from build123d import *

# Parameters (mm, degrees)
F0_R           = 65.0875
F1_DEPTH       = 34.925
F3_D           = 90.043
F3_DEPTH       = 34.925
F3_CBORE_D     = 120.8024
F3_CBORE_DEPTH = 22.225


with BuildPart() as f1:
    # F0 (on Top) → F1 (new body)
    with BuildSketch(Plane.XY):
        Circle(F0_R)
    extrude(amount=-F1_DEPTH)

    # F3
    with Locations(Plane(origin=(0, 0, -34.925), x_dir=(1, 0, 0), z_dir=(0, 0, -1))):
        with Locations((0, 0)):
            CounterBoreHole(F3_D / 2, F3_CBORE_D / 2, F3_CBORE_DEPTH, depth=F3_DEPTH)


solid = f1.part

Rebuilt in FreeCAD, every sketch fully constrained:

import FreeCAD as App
import Part
import Sketcher
from FreeCAD import Vector
Q = App.Units.Quantity

doc = App.newDocument("Part")
body = doc.addObject("PartDesign::Body", "Body")

sketch1 = body.newObject("Sketcher::SketchObject", "Sketch")
sketch1.AttachmentSupport = (doc.getObject("XY_Plane"), [""])
sketch1.MapMode = "FlatFace"
sketch1.addGeometry(Part.Circle(Vector(0, 0, 0), Vector(0, 0, 1), 65), False)
sketch1.addConstraint([
    Sketcher.Constraint("Coincident", 0, 3, -1, 1),
    Sketcher.Constraint("Diameter", 0, Q("5.125 in")),
])
pad1 = body.newObject("PartDesign::Pad", "Pad")
pad1.Profile = sketch1
pad1.Length = Q("1.375 in")
pad1.Reversed = True

sketch2 = body.newObject("Sketcher::SketchObject", "Sketch001")
sketch2.AttachmentSupport = (doc.getObject("XY_Plane"), [""])
sketch2.MapMode = "FlatFace"
sketch2.AttachmentOffset = App.Placement(Vector(0, 0, -1.375 * 25.4), App.Rotation())
sketch2.addGeometry(Part.Circle(Vector(0, 0, 0), Vector(0, 0, 1), 45), False)
sketch2.addConstraint([
    Sketcher.Constraint("Coincident", 0, 3, -1, 1),
    Sketcher.Constraint("Diameter", 0, Q("3.545 in")),
])
doc.recompute()
hole = body.newObject("PartDesign::Hole", "Hole")
hole.Profile = sketch2
hole.ThreadType = "None"
hole.Diameter = Q("3.545 in")
hole.DepthType = "Dimension"
hole.Depth = Q("1.375 in")
hole.DrillPoint = "Flat"
hole.HoleCutType = "Counterbore"
hole.HoleCutDiameter = Q("4.756 in")
hole.HoleCutDepth = Q("0.875 in")
hole.Reversed = True

doc.recompute()
